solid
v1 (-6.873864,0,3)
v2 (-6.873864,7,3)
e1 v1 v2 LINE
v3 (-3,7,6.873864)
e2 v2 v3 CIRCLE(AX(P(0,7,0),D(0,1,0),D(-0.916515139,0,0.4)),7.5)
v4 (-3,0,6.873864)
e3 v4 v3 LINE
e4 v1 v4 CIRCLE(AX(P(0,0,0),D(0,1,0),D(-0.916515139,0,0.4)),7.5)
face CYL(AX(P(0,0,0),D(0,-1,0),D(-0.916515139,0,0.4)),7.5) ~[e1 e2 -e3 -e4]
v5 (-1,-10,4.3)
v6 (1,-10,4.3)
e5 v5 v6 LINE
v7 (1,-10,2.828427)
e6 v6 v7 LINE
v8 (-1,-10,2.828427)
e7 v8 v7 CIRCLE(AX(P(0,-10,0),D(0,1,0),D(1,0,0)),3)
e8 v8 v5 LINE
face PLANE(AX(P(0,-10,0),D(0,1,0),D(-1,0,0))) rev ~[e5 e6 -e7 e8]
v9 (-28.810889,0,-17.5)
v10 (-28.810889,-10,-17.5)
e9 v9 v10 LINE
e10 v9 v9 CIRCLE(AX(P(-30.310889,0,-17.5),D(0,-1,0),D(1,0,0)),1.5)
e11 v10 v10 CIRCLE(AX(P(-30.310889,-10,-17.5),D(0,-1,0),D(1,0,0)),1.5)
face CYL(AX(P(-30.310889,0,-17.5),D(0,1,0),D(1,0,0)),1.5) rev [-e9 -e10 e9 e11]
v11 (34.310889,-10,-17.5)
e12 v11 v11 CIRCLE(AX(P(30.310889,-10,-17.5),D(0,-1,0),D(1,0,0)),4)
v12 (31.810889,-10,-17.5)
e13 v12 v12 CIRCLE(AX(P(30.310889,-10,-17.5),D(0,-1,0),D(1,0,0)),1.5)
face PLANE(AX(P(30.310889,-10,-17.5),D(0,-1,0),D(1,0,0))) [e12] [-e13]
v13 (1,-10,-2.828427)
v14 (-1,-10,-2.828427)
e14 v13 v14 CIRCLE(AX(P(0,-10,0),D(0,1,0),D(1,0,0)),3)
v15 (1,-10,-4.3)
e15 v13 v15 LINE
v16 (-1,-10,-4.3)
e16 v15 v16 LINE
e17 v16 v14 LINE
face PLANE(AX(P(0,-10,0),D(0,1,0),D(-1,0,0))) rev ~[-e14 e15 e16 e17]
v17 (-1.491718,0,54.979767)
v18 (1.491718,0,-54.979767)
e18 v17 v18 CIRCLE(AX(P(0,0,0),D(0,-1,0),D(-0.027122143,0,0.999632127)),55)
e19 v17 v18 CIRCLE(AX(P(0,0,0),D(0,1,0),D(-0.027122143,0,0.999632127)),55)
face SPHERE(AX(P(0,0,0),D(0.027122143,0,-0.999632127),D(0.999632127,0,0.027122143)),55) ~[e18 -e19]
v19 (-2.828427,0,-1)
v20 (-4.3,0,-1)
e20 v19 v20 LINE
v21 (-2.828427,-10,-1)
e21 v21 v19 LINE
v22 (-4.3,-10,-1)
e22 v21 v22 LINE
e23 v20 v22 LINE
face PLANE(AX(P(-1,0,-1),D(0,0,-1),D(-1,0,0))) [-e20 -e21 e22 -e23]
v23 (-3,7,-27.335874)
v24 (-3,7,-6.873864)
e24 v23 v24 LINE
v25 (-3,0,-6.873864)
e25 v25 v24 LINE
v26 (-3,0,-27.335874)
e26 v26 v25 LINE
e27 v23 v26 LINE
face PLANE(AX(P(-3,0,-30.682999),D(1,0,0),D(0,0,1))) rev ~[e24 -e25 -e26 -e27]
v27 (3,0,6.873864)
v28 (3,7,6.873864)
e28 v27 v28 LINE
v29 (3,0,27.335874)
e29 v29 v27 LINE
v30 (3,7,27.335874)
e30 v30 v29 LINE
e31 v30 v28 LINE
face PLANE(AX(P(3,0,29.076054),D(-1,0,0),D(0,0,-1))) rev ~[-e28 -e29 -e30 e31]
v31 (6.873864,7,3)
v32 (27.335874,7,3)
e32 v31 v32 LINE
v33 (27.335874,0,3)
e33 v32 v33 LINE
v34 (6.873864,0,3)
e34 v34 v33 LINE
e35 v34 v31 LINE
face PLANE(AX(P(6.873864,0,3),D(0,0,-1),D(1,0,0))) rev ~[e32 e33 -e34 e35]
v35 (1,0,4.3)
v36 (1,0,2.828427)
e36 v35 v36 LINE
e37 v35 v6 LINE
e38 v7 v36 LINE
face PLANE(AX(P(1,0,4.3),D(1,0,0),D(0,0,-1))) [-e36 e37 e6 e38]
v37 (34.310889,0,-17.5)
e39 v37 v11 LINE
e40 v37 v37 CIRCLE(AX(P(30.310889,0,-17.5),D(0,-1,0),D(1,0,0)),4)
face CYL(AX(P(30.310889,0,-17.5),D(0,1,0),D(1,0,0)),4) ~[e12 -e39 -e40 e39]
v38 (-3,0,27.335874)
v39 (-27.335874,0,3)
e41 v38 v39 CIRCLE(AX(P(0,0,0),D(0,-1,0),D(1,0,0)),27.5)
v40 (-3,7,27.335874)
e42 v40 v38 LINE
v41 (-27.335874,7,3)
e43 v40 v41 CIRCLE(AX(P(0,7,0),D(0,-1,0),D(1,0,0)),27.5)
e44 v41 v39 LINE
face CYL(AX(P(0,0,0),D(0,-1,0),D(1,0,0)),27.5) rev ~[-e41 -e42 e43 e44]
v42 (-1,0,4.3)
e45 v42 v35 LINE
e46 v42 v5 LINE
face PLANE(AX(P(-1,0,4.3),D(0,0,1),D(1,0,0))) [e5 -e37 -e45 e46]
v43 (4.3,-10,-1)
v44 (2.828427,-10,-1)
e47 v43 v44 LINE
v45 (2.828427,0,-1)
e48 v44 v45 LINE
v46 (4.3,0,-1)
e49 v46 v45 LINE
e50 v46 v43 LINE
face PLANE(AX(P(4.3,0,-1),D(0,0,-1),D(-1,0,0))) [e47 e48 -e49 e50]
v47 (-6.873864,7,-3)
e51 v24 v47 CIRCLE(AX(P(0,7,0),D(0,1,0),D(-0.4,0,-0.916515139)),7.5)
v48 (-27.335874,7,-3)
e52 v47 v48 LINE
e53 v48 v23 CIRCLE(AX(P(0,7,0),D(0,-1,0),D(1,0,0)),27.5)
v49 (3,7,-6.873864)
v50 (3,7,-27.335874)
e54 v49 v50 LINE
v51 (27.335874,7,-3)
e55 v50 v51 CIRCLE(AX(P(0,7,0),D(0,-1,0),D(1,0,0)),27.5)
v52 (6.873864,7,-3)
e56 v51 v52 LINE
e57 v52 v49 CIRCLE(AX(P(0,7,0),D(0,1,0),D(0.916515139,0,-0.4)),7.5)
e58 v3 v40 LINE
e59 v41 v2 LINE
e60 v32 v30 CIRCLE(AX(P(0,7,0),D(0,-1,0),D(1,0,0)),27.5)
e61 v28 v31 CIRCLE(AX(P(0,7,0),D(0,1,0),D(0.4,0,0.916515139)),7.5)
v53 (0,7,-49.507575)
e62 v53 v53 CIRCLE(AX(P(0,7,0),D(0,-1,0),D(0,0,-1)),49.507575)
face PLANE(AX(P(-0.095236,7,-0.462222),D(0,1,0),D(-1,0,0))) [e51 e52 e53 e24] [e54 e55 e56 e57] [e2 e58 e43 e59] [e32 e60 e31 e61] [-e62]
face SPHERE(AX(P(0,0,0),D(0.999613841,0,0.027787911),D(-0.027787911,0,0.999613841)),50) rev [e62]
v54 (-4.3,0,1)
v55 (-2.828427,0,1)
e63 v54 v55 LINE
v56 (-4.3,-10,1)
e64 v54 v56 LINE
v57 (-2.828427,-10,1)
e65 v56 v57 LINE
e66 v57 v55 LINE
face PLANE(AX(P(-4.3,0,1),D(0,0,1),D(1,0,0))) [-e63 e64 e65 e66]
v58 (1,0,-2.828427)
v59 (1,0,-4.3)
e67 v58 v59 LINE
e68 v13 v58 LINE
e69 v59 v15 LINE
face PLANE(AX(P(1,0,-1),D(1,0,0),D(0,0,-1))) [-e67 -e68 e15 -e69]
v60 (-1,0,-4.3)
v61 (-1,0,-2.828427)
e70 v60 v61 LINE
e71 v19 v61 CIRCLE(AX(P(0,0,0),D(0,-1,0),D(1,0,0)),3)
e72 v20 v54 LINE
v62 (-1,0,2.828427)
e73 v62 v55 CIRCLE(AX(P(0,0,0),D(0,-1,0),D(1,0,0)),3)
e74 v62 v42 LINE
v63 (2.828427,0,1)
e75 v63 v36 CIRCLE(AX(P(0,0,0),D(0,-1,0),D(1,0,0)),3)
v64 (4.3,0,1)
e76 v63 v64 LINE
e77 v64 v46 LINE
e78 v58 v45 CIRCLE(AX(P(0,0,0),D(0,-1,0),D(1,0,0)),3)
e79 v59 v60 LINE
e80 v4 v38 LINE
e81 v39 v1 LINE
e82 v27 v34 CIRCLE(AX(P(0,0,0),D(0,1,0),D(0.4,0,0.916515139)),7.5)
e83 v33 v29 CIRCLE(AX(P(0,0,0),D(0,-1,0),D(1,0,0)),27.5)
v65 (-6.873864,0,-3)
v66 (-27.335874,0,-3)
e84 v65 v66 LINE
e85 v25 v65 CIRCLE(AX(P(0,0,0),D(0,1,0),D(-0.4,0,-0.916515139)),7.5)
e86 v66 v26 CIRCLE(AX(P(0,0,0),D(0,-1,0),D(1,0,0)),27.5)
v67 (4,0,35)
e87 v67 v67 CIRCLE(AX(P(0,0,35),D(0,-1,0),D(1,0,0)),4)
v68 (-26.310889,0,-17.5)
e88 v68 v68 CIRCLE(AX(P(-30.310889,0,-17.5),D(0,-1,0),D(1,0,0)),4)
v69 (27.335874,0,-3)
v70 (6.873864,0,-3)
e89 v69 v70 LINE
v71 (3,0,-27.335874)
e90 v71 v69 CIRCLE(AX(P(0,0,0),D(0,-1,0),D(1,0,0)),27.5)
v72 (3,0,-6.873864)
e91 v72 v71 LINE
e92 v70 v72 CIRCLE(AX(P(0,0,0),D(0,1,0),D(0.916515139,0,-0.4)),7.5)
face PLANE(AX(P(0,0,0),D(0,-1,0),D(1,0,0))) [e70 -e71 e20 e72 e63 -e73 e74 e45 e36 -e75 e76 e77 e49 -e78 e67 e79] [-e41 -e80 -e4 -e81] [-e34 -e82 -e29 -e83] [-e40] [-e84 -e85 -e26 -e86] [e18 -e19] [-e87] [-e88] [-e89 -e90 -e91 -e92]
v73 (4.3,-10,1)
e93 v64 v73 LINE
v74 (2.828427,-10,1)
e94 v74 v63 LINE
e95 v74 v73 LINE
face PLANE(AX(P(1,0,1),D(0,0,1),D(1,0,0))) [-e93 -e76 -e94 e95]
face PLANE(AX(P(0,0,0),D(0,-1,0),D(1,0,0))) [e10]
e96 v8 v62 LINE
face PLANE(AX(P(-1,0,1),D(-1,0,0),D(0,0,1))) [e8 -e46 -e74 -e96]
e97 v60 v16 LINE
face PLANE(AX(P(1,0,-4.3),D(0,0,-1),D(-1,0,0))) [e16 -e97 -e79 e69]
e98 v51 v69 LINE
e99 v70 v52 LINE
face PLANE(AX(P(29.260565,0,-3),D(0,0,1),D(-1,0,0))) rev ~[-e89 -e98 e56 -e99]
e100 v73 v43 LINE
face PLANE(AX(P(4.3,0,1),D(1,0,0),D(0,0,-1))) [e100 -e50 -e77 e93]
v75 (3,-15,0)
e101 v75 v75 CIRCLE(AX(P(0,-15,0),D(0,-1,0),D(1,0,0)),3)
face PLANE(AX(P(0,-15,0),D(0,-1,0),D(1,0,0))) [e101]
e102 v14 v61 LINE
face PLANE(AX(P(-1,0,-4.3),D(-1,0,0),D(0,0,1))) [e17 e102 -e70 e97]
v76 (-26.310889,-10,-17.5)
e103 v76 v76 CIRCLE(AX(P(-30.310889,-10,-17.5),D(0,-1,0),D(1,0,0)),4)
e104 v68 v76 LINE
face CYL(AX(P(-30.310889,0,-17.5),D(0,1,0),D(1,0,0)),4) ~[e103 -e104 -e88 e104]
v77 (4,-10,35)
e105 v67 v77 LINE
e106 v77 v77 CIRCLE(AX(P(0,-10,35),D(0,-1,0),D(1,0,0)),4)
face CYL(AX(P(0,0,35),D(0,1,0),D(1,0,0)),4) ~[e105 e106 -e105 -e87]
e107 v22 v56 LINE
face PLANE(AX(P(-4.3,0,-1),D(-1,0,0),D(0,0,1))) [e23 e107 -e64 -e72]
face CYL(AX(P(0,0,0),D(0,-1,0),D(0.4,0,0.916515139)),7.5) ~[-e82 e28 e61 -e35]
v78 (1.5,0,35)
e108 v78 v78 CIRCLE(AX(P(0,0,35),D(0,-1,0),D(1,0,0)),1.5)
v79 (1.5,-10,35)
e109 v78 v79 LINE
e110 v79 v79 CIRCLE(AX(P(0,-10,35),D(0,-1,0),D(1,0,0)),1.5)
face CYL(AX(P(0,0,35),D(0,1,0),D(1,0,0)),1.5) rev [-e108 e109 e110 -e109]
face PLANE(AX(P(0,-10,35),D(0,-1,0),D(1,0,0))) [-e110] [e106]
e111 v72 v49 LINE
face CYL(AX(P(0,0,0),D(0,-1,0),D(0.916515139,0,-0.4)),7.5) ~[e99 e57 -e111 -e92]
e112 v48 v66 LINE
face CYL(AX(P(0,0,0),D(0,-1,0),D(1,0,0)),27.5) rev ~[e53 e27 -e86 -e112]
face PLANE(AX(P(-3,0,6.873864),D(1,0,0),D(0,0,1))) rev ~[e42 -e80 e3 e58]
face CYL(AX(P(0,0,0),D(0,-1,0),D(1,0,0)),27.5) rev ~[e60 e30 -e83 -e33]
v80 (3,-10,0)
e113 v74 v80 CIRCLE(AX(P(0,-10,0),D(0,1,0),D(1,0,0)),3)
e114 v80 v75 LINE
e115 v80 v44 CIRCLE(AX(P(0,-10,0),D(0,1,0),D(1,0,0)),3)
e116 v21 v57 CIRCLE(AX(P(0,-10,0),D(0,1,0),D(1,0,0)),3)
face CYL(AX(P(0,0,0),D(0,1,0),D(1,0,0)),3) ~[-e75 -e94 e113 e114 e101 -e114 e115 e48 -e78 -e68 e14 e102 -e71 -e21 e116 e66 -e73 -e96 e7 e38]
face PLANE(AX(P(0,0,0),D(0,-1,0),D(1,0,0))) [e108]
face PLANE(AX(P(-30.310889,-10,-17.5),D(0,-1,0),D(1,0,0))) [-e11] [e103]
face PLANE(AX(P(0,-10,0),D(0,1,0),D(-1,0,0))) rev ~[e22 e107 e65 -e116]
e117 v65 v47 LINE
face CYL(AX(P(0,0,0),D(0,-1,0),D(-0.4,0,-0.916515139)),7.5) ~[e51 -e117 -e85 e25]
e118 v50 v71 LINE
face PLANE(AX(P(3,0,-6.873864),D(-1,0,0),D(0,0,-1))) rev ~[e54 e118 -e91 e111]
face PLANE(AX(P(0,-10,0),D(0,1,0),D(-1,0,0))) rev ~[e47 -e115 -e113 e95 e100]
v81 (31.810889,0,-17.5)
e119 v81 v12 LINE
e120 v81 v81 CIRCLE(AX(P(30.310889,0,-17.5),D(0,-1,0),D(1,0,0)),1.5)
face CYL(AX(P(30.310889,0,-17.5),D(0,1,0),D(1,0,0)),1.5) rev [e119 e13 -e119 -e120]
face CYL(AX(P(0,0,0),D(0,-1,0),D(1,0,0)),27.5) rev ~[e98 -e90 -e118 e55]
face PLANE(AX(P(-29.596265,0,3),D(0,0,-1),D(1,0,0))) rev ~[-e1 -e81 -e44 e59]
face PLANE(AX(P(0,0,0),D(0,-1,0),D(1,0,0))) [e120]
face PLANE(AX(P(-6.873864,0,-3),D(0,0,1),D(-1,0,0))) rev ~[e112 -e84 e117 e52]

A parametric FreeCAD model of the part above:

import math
import FreeCAD as App
import Part
import Sketcher


def add_polygon(sketch, points):
    """Adds a closed chain of lines whose ends are joined by coincident constraints."""
    first, n = sketch.GeometryCount, len(points)
    for a, b in zip(points, points[1:] + points[:1]):
        sketch.addGeometry(Part.LineSegment(App.Vector(*a, 0), App.Vector(*b, 0)), False)
    for i in range(n):
        sketch.addConstraint(Sketcher.Constraint("Coincident", first + i, 2, first + (i + 1) % n, 1))

doc = App.newDocument("Part")
body = doc.addObject("PartDesign::Body", "Body")

# Sketch on XZ plane
sketch1 = body.newObject("Sketcher::SketchObject", "Sketch")
sketch1.AttachmentSupport = (doc.getObject("XZ_Plane"), [""])
sketch1.MapMode = "FlatFace"
sketch1.addGeometry(Part.LineSegment(App.Vector(1, -55, 0), App.Vector(-1, 55, 0)), False)
sketch1.addGeometry(Part.ArcOfCircle(Part.Circle(App.Vector(0, 0, 0), App.Vector(0, 0, 1), 55), math.radians(-88), math.radians(92)), False)
sketch1.addGeometry(Part.LineSegment(App.Vector(1, -55, 0), App.Vector(-1, 55, 0)), True)  # axis
sketch1.addConstraint(Sketcher.Constraint("Coincident", 0, 1, 1, 1))
sketch1.addConstraint(Sketcher.Constraint("Coincident", 1, 2, 0, 2))
sketch1.addConstraint(Sketcher.Constraint("Coincident", 1, 3, -1, 1))
sketch1.addConstraint(Sketcher.Constraint("Coincident", 2, 1, 0, 1))
sketch1.addConstraint(Sketcher.Constraint("Coincident", 2, 2, 1, 2))
sketch1.addConstraint(Sketcher.Constraint("Radius", 1, 55.0))
sketch1.addConstraint(Sketcher.Constraint("DistanceX", -1, 1, 0, 1, 1.491718))
sketch1.addConstraint(Sketcher.Constraint("DistanceX", 1, 2, -1, 1, 1.491718))
revolution = body.newObject("PartDesign::Revolution", "Revolution")
revolution.Profile = sketch1
revolution.ReferenceAxis = (sketch1, ["Axis0"])
revolution.Angle = 180

# Sketch on XZ plane
sketch2 = body.newObject("Sketcher::SketchObject", "Sketch001")
sketch2.AttachmentSupport = (doc.getObject("XZ_Plane"), [""])
sketch2.MapMode = "FlatFace"
sketch2.addGeometry(Part.LineSegment(App.Vector(-50, -1, 0), App.Vector(50, 1, 0)), False)
sketch2.addGeometry(Part.ArcOfCircle(Part.Circle(App.Vector(0, 0, 0), App.Vector(0, 0, 1), 50), math.radians(2), math.radians(182)), False)
sketch2.addGeometry(Part.LineSegment(App.Vector(50, 1, 0), App.Vector(-50, -1, 0)), True)  # axis
sketch2.addConstraint(Sketcher.Constraint("Coincident", 0, 1, 1, 2))
sketch2.addConstraint(Sketcher.Constraint("Coincident", 1, 1, 0, 2))
sketch2.addConstraint(Sketcher.Constraint("Coincident", 1, 3, -1, 1))
sketch2.addConstraint(Sketcher.Constraint("Coincident", 2, 1, 1, 1))
sketch2.addConstraint(Sketcher.Constraint("Coincident", 2, 2, 0, 1))
sketch2.addConstraint(Sketcher.Constraint("Radius", 1, 50.0))
sketch2.addConstraint(Sketcher.Constraint("DistanceX", 2, 2, -1, 1, 49.980692))
sketch2.addConstraint(Sketcher.Constraint("DistanceY", 0, 1, 1, 1, 2.778791))
groove = body.newObject("PartDesign::Groove", "Groove")
groove.Profile = sketch2
groove.ReferenceAxis = (sketch2, ["Axis0"])
groove.Angle = 360

# Sketch on XZ plane
sketch3 = body.newObject("Sketcher::SketchObject", "Sketch002")
sketch3.AttachmentSupport = (doc.getObject("XZ_Plane"), [""])
sketch3.MapMode = "FlatFace"
sketch3.addGeometry(Part.Circle(App.Vector(0, 0, 0), App.Vector(0, 0, 1), 50), False)
sketch3.addConstraint(Sketcher.Constraint("Coincident", 0, 3, -1, 1))
sketch3.addConstraint(Sketcher.Constraint("Diameter", 0, 100.0))
pad1 = body.newObject("PartDesign::Pad", "Pad")
pad1.Profile = sketch3
pad1.Length = 7
pad1.Reversed = True

# Sketch on XZ plane
sketch4 = body.newObject("Sketcher::SketchObject", "Sketch003")
sketch4.AttachmentSupport = (doc.getObject("XZ_Plane"), [""])
sketch4.MapMode = "FlatFace"
sketch4.addGeometry(Part.Circle(App.Vector(0, 35, 0), App.Vector(0, 0, 1), 4), False)
sketch4.addGeometry(Part.Circle(App.Vector(0, 35, 0), App.Vector(0, 0, 1), 1.5), False)
sketch4.addGeometry(Part.Circle(App.Vector(30.3, -17.5, 0), App.Vector(0, 0, 1), 4), False)
sketch4.addGeometry(Part.Circle(App.Vector(30.3, -17.5, 0), App.Vector(0, 0, 1), 1.5), False)
sketch4.addGeometry(Part.Circle(App.Vector(-30.3, -17.5, 0), App.Vector(0, 0, 1), 4), False)
sketch4.addGeometry(Part.Circle(App.Vector(-30.3, -17.5, 0), App.Vector(0, 0, 1), 1.5), False)
sketch4.addConstraint(Sketcher.Constraint("Coincident", 1, 3, 0, 3))
sketch4.addConstraint(Sketcher.Constraint("Coincident", 3, 3, 2, 3))
sketch4.addConstraint(Sketcher.Constraint("Coincident", 5, 3, 4, 3))
sketch4.addConstraint(Sketcher.Constraint("Equal", 0, 2))
sketch4.addConstraint(Sketcher.Constraint("Equal", 1, 3))
sketch4.addConstraint(Sketcher.Constraint("Equal", 2, 4))
sketch4.addConstraint(Sketcher.Constraint("Equal", 3, 5))
sketch4.addConstraint(Sketcher.Constraint("Symmetric", 2, 3, 4, 3, -2))
sketch4.addConstraint(Sketcher.Constraint("PointOnObject", 0, 3, -2))
sketch4.addConstraint(Sketcher.Constraint("Diameter", 0, 8.0))
sketch4.addConstraint(Sketcher.Constraint("Diameter", 1, 3.0))
sketch4.addConstraint(Sketcher.Constraint("DistanceY", -1, 1, 0, 3, 35.0))
sketch4.addConstraint(Sketcher.Constraint("DistanceY", 2, 3, -1, 1, 17.5))
sketch4.addConstraint(Sketcher.Constraint("DistanceX", -1, 1, 2, 3, 30.310889))
pad2 = body.newObject("PartDesign::Pad", "Pad001")
pad2.Profile = sketch4
pad2.Length = 10

# Sketch on XZ plane
sketch5 = body.newObject("Sketcher::SketchObject", "Sketch004")
sketch5.AttachmentSupport = (doc.getObject("XZ_Plane"), [""])
sketch5.MapMode = "FlatFace"
sketch5.addGeometry(Part.Circle(App.Vector(0, 0, 0), App.Vector(0, 0, 1), 28), False)
sketch5.addConstraint(Sketcher.Constraint("Coincident", 0, 3, -1, 1))
sketch5.addConstraint(Sketcher.Constraint("Diameter", 0, 55.0))
pocket1 = body.newObject("PartDesign::Pocket", "Pocket")
pocket1.Profile = sketch5
pocket1.Length = 10

# Sketch on XZ plane
sketch6 = body.newObject("Sketcher::SketchObject", "Sketch005")
sketch6.AttachmentSupport = (doc.getObject("XZ_Plane"), [""])
sketch6.MapMode = "FlatFace"
sketch6.addGeometry(Part.LineSegment(App.Vector(-7, 3, 0), App.Vector(-30, 3, 0)), False)
sketch6.addGeometry(Part.LineSegment(App.Vector(-30, 3, 0), App.Vector(-30, -3, 0)), False)
sketch6.addGeometry(Part.LineSegment(App.Vector(-30, -3, 0), App.Vector(-7, -3, 0)), False)
sketch6.addGeometry(Part.ArcOfCircle(Part.Circle(App.Vector(0, 0, 0), App.Vector(0, 0, 1), 7), math.radians(-156), math.radians(-114)), False)
sketch6.addGeometry(Part.LineSegment(App.Vector(-3, -7, 0), App.Vector(-3, -31, 0)), False)
sketch6.addGeometry(Part.LineSegment(App.Vector(-3, -31, 0), App.Vector(3, -31, 0)), False)
sketch6.addGeometry(Part.LineSegment(App.Vector(3, -31, 0), App.Vector(3, -7, 0)), False)
sketch6.addGeometry(Part.ArcOfCircle(Part.Circle(App.Vector(0, 0, 0), App.Vector(0, 0, 1), 7), math.radians(-66), math.radians(-24)), False)
sketch6.addGeometry(Part.LineSegment(App.Vector(7, -3, 0), App.Vector(29, -3, 0)), False)
sketch6.addGeometry(Part.LineSegment(App.Vector(29, -3, 0), App.Vector(29, 3, 0)), False)
sketch6.addGeometry(Part.LineSegment(App.Vector(29, 3, 0), App.Vector(7, 3, 0)), False)
sketch6.addGeometry(Part.ArcOfCircle(Part.Circle(App.Vector(0, 0, 0), App.Vector(0, 0, 1), 7), math.radians(24), math.radians(66)), False)
sketch6.addGeometry(Part.LineSegment(App.Vector(3, 7, 0), App.Vector(3, 29, 0)), False)
sketch6.addGeometry(Part.LineSegment(App.Vector(3, 29, 0), App.Vector(-3, 29, 0)), False)
sketch6.addGeometry(Part.LineSegment(App.Vector(-3, 29, 0), App.Vector(-3, 7, 0)), False)
sketch6.addGeometry(Part.ArcOfCircle(Part.Circle(App.Vector(0, 0, 0), App.Vector(0, 0, 1), 7), math.radians(114), math.radians(156)), False)
sketch6.addConstraint(Sketcher.Constraint("Coincident", 0, 2, 1, 1))
sketch6.addConstraint(Sketcher.Constraint("Coincident", 1, 2, 2, 1))
sketch6.addConstraint(Sketcher.Constraint("Coincident", 2, 2, 3, 1))
sketch6.addConstraint(Sketcher.Constraint("Coincident", 3, 2, 4, 1))
sketch6.addConstraint(Sketcher.Constraint("Coincident", 4, 2, 5, 1))
sketch6.addConstraint(Sketcher.Constraint("Coincident", 5, 2, 6, 1))
sketch6.addConstraint(Sketcher.Constraint("Coincident", 6, 2, 7, 1))
sketch6.addConstraint(Sketcher.Constraint("Coincident", 7, 2, 8, 1))
sketch6.addConstraint(Sketcher.Constraint("Coincident", 8, 2, 9, 1))
sketch6.addConstraint(Sketcher.Constraint("Coincident", 9, 2, 10, 1))
sketch6.addConstraint(Sketcher.Constraint("Coincident", 10, 2, 11, 1))
sketch6.addConstraint(Sketcher.Constraint("Coincident", 11, 2, 12, 1))
sketch6.addConstraint(Sketcher.Constraint("Coincident", 12, 2, 13, 1))
sketch6.addConstraint(Sketcher.Constraint("Coincident", 13, 2, 14, 1))
sketch6.addConstraint(Sketcher.Constraint("Coincident", 14, 2, 15, 1))
sketch6.addConstraint(Sketcher.Constraint("Coincident", 15, 2, 0, 1))
sketch6.addConstraint(Sketcher.Constraint("Horizontal", 0))
sketch6.addConstraint(Sketcher.Constraint("Vertical", 1))
sketch6.addConstraint(Sketcher.Constraint("Horizontal", 2))
sketch6.addConstraint(Sketcher.Constraint("Vertical", 4))
sketch6.addConstraint(Sketcher.Constraint("Horizontal", 5))
sketch6.addConstraint(Sketcher.Constraint("Vertical", 6))
sketch6.addConstraint(Sketcher.Constraint("Horizontal", 8))
sketch6.addConstraint(Sketcher.Constraint("Vertical", 9))
sketch6.addConstraint(Sketcher.Constraint("Horizontal", 10))
sketch6.addConstraint(Sketcher.Constraint("Vertical", 12))
sketch6.addConstraint(Sketcher.Constraint("Horizontal", 13))
sketch6.addConstraint(Sketcher.Constraint("Vertical", 14))
sketch6.addConstraint(Sketcher.Constraint("Coincident", 3, 3, -1, 1))
sketch6.addConstraint(Sketcher.Constraint("Coincident", 7, 3, -1, 1))
sketch6.addConstraint(Sketcher.Constraint("Coincident", 11, 3, -1, 1))
sketch6.addConstraint(Sketcher.Constraint("Coincident", 15, 3, -1, 1))
sketch6.addConstraint(Sketcher.Constraint("Equal", 3, 7))
sketch6.addConstraint(Sketcher.Constraint("Equal", 7, 11))
sketch6.addConstraint(Sketcher.Constraint("Equal", 11, 15))
sketch6.addConstraint(Sketcher.Constraint("Horizontal", 3, 2, 6, 2))
sketch6.addConstraint(Sketcher.Constraint("Horizontal", 2, 2, 7, 2))
sketch6.addConstraint(Sketcher.Constraint("Horizontal", 0, 2, 9, 2))
sketch6.addConstraint(Sketcher.Constraint("Horizontal", 11, 2, 14, 2))
sketch6.addConstraint(Sketcher.Constraint("Vertical", 7, 2, 10, 2))
sketch6.addConstraint(Sketcher.Constraint("Vertical", 6, 2, 11, 2))
sketch6.addConstraint(Sketcher.Constraint("Equal", 13, 1))
sketch6.addConstraint(Sketcher.Constraint("Radius", 3, 7.5))
sketch6.addConstraint(Sketcher.Constraint("DistanceX", 5, 1, 5, 2, 6.0))
sketch6.addConstraint(Sketcher.Constraint("DistanceX", 0, 2, 0, 1, 22.722401))
sketch6.addConstraint(Sketcher.Constraint("DistanceX", 8, 1, 8, 2, 22.386701))
sketch6.addConstraint(Sketcher.Constraint("DistanceY", 4, 2, -1, 1, 30.682999))
sketch6.addConstraint(Sketcher.Constraint("DistanceY", 12, 1, 12, 2, 22.202191))
pad3 = body.newObject("PartDesign::Pad", "Pad002")
pad3.Profile = sketch6
pad3.Length = 7
pad3.Reversed = True

# Sketch on XZ plane
sketch7 = body.newObject("Sketcher::SketchObject", "Sketch006")
sketch7.AttachmentSupport = (doc.getObject("XZ_Plane"), [""])
sketch7.MapMode = "FlatFace"
sketch7.addGeometry(Part.Circle(App.Vector(0, 0, 0), App.Vector(0, 0, 1), 3), False)
sketch7.addConstraint(Sketcher.Constraint("Coincident", 0, 3, -1, 1))
sketch7.addConstraint(Sketcher.Constraint("Diameter", 0, 6.0))
pad4 = body.newObject("PartDesign::Pad", "Pad003")
pad4.Profile = sketch7
pad4.Length = 15

# Sketch on XZ plane
sketch8 = body.newObject("Sketcher::SketchObject", "Sketch007")
sketch8.AttachmentSupport = (doc.getObject("XZ_Plane"), [""])
sketch8.MapMode = "FlatFace"
add_polygon(sketch8, [(4.3, 1), (1, 1), (1, 4.3), (-1, 4.3), (-1, 1), (-4.3, 1), (-4.3, -1), (-1, -1), (-1, -4.3), (1, -4.3), (1, -1), (4.3, -1)])  # lines 0-11
sketch8.addConstraint(Sketcher.Constraint("Horizontal", 0))
sketch8.addConstraint(Sketcher.Constraint("Vertical", 1))
sketch8.addConstraint(Sketcher.Constraint("Horizontal", 2))
sketch8.addConstraint(Sketcher.Constraint("Vertical", 3))
sketch8.addConstraint(Sketcher.Constraint("Horizontal", 4))
sketch8.addConstraint(Sketcher.Constraint("Vertical", 5))
sketch8.addConstraint(Sketcher.Constraint("Horizontal", 6))
sketch8.addConstraint(Sketcher.Constraint("Vertical", 7))
sketch8.addConstraint(Sketcher.Constraint("Horizontal", 8))
sketch8.addConstraint(Sketcher.Constraint("Vertical", 9))
sketch8.addConstraint(Sketcher.Constraint("Horizontal", 10))
sketch8.addConstraint(Sketcher.Constraint("Vertical", 11))
sketch8.addConstraint(Sketcher.Constraint("Symmetric", 0, 2, 6, 2, -1, 1))
sketch8.addConstraint(Sketcher.Constraint("Symmetric", 2, 2, 8, 2, -1, 1))
sketch8.addConstraint(Sketcher.Constraint("Symmetric", 4, 2, 10, 2, -1, 1))
sketch8.addConstraint(Sketcher.Constraint("Symmetric", 0, 2, 3, 2, -2))
sketch8.addConstraint(Sketcher.Constraint("Equal", 10, 1))
sketch8.addConstraint(Sketcher.Constraint("Equal", 8, 5))
sketch8.addConstraint(Sketcher.Constraint("DistanceX", 2, 2, 2, 1, 2.0))
sketch8.addConstraint(Sketcher.Constraint("DistanceX", 0, 2, 0, 1, 3.3))
pad5 = body.newObject("PartDesign::Pad", "Pad004")
pad5.Profile = sketch8
pad5.Length = 10

doc.recompute()
